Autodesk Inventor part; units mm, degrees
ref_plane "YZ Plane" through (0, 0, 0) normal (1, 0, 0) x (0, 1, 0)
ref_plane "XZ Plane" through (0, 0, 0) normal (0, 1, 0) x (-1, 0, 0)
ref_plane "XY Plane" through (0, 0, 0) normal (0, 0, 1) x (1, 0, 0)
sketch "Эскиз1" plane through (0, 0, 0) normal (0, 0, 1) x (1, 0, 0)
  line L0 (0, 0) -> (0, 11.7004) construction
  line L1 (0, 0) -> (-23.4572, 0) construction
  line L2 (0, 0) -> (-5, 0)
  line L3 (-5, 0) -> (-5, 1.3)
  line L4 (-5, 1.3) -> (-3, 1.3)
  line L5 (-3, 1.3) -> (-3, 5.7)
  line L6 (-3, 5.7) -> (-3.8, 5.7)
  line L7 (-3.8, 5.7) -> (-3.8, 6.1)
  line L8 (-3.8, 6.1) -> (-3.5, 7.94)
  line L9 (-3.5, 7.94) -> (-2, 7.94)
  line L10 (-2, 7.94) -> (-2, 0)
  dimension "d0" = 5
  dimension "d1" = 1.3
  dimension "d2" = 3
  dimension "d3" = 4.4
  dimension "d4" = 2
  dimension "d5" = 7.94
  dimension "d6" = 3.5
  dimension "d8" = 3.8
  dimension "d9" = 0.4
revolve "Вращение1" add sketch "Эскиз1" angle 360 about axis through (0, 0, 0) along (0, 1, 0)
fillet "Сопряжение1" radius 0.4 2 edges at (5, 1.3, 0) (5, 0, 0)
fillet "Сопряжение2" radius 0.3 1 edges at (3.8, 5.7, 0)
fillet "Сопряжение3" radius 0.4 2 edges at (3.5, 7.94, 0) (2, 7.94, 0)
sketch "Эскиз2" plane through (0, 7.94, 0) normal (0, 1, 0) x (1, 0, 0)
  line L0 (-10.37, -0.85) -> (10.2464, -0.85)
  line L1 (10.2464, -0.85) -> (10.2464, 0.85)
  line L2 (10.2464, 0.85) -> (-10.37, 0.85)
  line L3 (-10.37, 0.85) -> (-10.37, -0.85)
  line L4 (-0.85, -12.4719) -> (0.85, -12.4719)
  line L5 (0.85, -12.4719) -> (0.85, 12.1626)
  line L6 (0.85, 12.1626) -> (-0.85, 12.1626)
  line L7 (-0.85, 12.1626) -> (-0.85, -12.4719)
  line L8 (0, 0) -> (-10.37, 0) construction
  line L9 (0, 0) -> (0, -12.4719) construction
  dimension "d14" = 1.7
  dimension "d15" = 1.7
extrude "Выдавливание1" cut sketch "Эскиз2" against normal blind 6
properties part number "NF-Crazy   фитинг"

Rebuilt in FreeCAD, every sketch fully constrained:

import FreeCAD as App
import Part
import Sketcher
Q = App.Units.Quantity


def edges_at(feature, points):
    """Names of the edges that pass closest to the given points."""
    edges = feature.Shape.Edges
    near = lambda p: min(range(len(edges)), key=lambda i: edges[i].distToShape(Part.Vertex(*p))[0])
    return sorted({f"Edge{near(p) + 1}" for p in points})


def add_polygon(sketch, points):
    """Adds a closed chain of lines whose ends are joined by coincident constraints."""
    first, n = sketch.GeometryCount, len(points)
    for a, b in zip(points, points[1:] + points[:1]):
        sketch.addGeometry(Part.LineSegment(App.Vector(*a, 0), App.Vector(*b, 0)), False)
    for i in range(n):
        sketch.addConstraint(Sketcher.Constraint("Coincident", first + i, 2, first + (i + 1) % n, 1))

doc = App.newDocument("Part")
body = doc.addObject("PartDesign::Body", "Body")

sketch1 = doc.addObject("Sketcher::SketchObject", "Sketch")
body.addObject(sketch1)
sketch1.AttachmentSupport = (doc.XY_Plane, [""])
sketch1.MapMode = "FlatFace"
add_polygon(sketch1, [(-5, 0), (-2, 0), (-2, 7.94), (-3.5, 7.94), (-3.8, 6.1), (-3.8, 5.7), (-3, 5.7), (-3, 1.3), (-5, 1.3)])
sketch1.addConstraint(Sketcher.Constraint("Horizontal", 0))
sketch1.addConstraint(Sketcher.Constraint("Vertical", 1))
sketch1.addConstraint(Sketcher.Constraint("Horizontal", 2))
sketch1.addConstraint(Sketcher.Constraint("Vertical", 4))
sketch1.addConstraint(Sketcher.Constraint("Horizontal", 5))
sketch1.addConstraint(Sketcher.Constraint("Vertical", 6))
sketch1.addConstraint(Sketcher.Constraint("Horizontal", 7))
sketch1.addConstraint(Sketcher.Constraint("Vertical", 8))
sketch1.addConstraint(Sketcher.Constraint("PointOnObject", 0, 2, -1))
sketch1.addConstraint(Sketcher.Constraint("DistanceX", 0, 1, 0, 2, Q("3 mm")))
sketch1.addConstraint(Sketcher.Constraint("DistanceX", 7, 2, 7, 1, Q("2 mm")))
sketch1.addConstraint(Sketcher.Constraint("DistanceY", 4, 2, 4, 1, Q("0.4 mm")))
sketch1.addConstraint(Sketcher.Constraint("DistanceY", 6, 2, 6, 1, Q("4.4 mm")))
sketch1.addConstraint(Sketcher.Constraint("DistanceY", 8, 2, 8, 1, Q("1.3 mm")))
sketch1.addConstraint(Sketcher.Constraint("DistanceX", 0, 2, -1, 1, Q("2 mm")))
sketch1.addConstraint(Sketcher.Constraint("DistanceY", 1, 1, 1, 2, Q("7.94 mm")))
sketch1.addConstraint(Sketcher.Constraint("DistanceX", 2, 2, -1, 1, Q("3.5 mm")))
sketch1.addConstraint(Sketcher.Constraint("DistanceX", 3, 2, -1, 1, Q("3.8 mm")))
revolution = doc.addObject("PartDesign::Revolution", "Revolution")
body.addObject(revolution)
revolution.Profile = sketch1
revolution.ReferenceAxis = (sketch1, ["V_Axis"])
revolution.Angle = 360
doc.recompute()

fillet = doc.addObject("PartDesign::Fillet", "Fillet")
body.addObject(fillet)
fillet.Base = (revolution, edges_at(revolution, [(5, 1.3, 0), (5, 0, 0)]))
fillet.Radius = 0.4
doc.recompute()

fillet2 = doc.addObject("PartDesign::Fillet", "Fillet001")
body.addObject(fillet2)
fillet2.Base = (fillet, edges_at(fillet, [(3.8, 5.7, 0)]))
fillet2.Radius = 0.3
doc.recompute()

fillet3 = doc.addObject("PartDesign::Fillet", "Fillet002")
body.addObject(fillet3)
fillet3.Base = (fillet2, edges_at(fillet2, [(3.5, 7.94, 0), (2, 7.94, 0)]))
fillet3.Radius = 0.4

sketch2 = doc.addObject("Sketcher::SketchObject", "Sketch001")
body.addObject(sketch2)
sketch2.AttachmentSupport = (doc.XZ_Plane, [""])
sketch2.MapMode = "FlatFace"
sketch2.AttachmentOffset = App.Placement(App.Vector(0, 0, -7.94), App.Rotation())
add_polygon(sketch2, [(-10.4, -0.8), (-10.4, 0.8), (-0.8, 0.8), (-0.8, 12.5), (0.8, 12.5), (0.8, 0.8), (10.2, 0.8), (10.2, -0.8), (0.8, -0.8), (0.8, -12.2), (-0.8, -12.2), (-0.8, -0.8)])
sketch2.addConstraint(Sketcher.Constraint("Vertical", 0))
sketch2.addConstraint(Sketcher.Constraint("Horizontal", 1))
sketch2.addConstraint(Sketcher.Constraint("Vertical", 2))
sketch2.addConstraint(Sketcher.Constraint("Horizontal", 3))
sketch2.addConstraint(Sketcher.Constraint("Vertical", 4))
sketch2.addConstraint(Sketcher.Constraint("Horizontal", 5))
sketch2.addConstraint(Sketcher.Constraint("Vertical", 6))
sketch2.addConstraint(Sketcher.Constraint("Horizontal", 7))
sketch2.addConstraint(Sketcher.Constraint("Vertical", 8))
sketch2.addConstraint(Sketcher.Constraint("Horizontal", 9))
sketch2.addConstraint(Sketcher.Constraint("Vertical", 10))
sketch2.addConstraint(Sketcher.Constraint("Horizontal", 11))
sketch2.addConstraint(Sketcher.Constraint("Symmetric", 1, 2, 7, 2, -1, 1))
sketch2.addConstraint(Sketcher.Constraint("Symmetric", 4, 2, 10, 2, -1, 1))
sketch2.addConstraint(Sketcher.Constraint("Symmetric", 1, 2, 4, 2, -2))
sketch2.addConstraint(Sketcher.Constraint("Equal", 9, 0))
sketch2.addConstraint(Sketcher.Constraint("DistanceX", 3, 1, 3, 2, Q("1.7 mm")))
sketch2.addConstraint(Sketcher.Constraint("DistanceX", 1, 1, 1, 2, Q("9.52 mm")))
sketch2.addConstraint(Sketcher.Constraint("DistanceY", 2, 1, 2, 2, Q("11.622 mm")))
sketch2.addConstraint(Sketcher.Constraint("DistanceX", 5, 1, 5, 2, Q("9.3964 mm")))
sketch2.addConstraint(Sketcher.Constraint("DistanceY", 8, 2, 8, 1, Q("11.3126 mm")))
pocket1 = doc.addObject("PartDesign::Pocket", "Pocket")
body.addObject(pocket1)
pocket1.Profile = sketch2
pocket1.Length = 6
pocket1.Reversed = True

doc.recompute()
